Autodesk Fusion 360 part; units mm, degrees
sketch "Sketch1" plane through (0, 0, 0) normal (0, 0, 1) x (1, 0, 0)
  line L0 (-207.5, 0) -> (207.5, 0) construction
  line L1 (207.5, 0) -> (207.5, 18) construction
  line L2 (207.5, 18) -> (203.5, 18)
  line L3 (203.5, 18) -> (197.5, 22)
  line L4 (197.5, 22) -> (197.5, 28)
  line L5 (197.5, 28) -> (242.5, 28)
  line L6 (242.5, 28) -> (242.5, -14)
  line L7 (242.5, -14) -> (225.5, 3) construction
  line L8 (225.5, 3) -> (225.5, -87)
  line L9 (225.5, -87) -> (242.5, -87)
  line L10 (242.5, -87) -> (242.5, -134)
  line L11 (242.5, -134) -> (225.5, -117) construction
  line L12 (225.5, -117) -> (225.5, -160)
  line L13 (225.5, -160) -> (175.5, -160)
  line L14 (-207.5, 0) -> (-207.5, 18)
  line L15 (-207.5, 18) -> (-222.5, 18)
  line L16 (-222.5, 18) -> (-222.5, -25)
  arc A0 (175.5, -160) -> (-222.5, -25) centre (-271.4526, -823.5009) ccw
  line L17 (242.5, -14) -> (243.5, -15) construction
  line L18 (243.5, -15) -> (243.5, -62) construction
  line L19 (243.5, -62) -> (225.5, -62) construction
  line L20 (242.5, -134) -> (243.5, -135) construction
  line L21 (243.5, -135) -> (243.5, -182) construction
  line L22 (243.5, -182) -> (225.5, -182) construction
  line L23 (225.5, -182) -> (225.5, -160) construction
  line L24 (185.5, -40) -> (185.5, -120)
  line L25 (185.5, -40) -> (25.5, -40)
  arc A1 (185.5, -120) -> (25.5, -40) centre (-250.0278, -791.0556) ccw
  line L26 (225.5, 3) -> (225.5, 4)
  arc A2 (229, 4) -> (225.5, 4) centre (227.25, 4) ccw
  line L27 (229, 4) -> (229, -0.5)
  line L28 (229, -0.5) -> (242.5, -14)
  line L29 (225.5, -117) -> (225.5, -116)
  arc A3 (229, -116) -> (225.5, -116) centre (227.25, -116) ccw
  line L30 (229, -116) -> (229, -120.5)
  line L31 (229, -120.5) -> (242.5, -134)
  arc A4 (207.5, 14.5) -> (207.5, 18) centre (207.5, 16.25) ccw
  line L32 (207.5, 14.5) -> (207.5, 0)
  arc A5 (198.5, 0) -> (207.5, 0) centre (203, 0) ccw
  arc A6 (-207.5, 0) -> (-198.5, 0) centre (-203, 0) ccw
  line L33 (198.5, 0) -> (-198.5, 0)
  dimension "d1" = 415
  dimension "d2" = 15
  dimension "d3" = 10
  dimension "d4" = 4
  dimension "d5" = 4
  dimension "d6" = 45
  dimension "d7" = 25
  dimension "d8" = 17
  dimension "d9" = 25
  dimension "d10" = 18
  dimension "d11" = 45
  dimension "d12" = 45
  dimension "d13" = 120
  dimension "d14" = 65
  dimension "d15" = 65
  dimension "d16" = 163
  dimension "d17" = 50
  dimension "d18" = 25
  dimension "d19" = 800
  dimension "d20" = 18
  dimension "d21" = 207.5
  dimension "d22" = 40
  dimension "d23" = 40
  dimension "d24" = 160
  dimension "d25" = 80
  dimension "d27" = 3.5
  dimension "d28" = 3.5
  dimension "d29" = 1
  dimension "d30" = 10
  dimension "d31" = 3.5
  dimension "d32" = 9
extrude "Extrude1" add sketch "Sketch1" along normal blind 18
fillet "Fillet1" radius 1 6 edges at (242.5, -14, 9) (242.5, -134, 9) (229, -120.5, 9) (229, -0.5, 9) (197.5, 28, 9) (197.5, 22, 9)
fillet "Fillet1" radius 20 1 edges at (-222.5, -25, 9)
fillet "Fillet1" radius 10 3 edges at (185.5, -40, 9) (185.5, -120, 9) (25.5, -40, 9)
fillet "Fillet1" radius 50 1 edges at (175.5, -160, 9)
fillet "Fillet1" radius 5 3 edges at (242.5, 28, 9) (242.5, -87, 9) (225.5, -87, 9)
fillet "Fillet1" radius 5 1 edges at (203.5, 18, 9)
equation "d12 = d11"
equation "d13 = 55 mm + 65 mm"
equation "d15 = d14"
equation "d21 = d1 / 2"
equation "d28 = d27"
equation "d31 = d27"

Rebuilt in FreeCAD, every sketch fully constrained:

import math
import FreeCAD as App
import Part
import Sketcher
Q = App.Units.Quantity


def edges_at(feature, points):
    """Names of the edges that pass closest to the given points."""
    edges = feature.Shape.Edges
    near = lambda p: min(range(len(edges)), key=lambda i: edges[i].distToShape(Part.Vertex(*p))[0])
    return sorted({f"Edge{near(p) + 1}" for p in points})

doc = App.newDocument("Part")
params = doc.addObject("Spreadsheet::Sheet", "Params")
for row, (alias, value) in enumerate([
    ("sketch1_radius", "800 mm"),
    ("sketch1_radius2", "4.5 mm"),
    ("sketch1_width", "4 mm"),
    ("sketch1_width2", "15 mm"),
    ("sketch1_width3", "50 mm"),
    ("pad1_length", "18 mm"),
    ("fillet_radius", "1 mm"),
    ("fillet2_radius", "20 mm"),
    ("fillet3_radius", "10 mm"),
    ("fillet4_radius", "50 mm"),
    ("fillet5_radius", "5 mm"),
    ("fillet6_radius", "5 mm"),
], start=1):
    params.set(f"A{row}", alias)
    params.set(f"B{row}", "=" + value)
    params.setAlias(f"B{row}", alias)

body = doc.addObject("PartDesign::Body", "Body")

sketch1 = body.newObject("Sketcher::SketchObject", "Sketch")
sketch1.AttachmentSupport = (doc.getObject("XY_Plane"), [""])
sketch1.MapMode = "FlatFace"
sketch1.addGeometry(Part.LineSegment(App.Vector(203.5, 18, 0), App.Vector(207.5, 18, 0)), False)
sketch1.addGeometry(Part.ArcOfCircle(Part.Circle(App.Vector(207.5, 16.25, 0), App.Vector(0, 0, 1), 1.75), math.radians(-90), math.radians(90)), False)
sketch1.addGeometry(Part.LineSegment(App.Vector(207.5, 14.5, 0), App.Vector(207.5, 0, 0)), False)
sketch1.addGeometry(Part.ArcOfCircle(Part.Circle(App.Vector(203, 0, 0), App.Vector(0, 0, 1), 4.5), math.radians(180), math.radians(360)), False)
sketch1.addGeometry(Part.LineSegment(App.Vector(198.5, 0, 0), App.Vector(-198.5, 0, 0)), False)
sketch1.addGeometry(Part.ArcOfCircle(Part.Circle(App.Vector(-203, 0, 0), App.Vector(0, 0, 1), 4.5), math.radians(180), math.radians(360)), False)
sketch1.addGeometry(Part.LineSegment(App.Vector(-207.5, 0, 0), App.Vector(-207.5, 18, 0)), False)
sketch1.addGeometry(Part.LineSegment(App.Vector(-207.5, 18, 0), App.Vector(-222.5, 18, 0)), False)
sketch1.addGeometry(Part.LineSegment(App.Vector(-222.5, 18, 0), App.Vector(-222.5, -25, 0)), False)
sketch1.addGeometry(Part.ArcOfCircle(Part.Circle(App.Vector(-271.4526, -823.5009, 0), App.Vector(0, 0, 1), 800.000044), math.radians(56.034699), math.radians(86.491837)), False)
sketch1.addGeometry(Part.LineSegment(App.Vector(175.5, -160, 0), App.Vector(225.5, -160, 0)), False)
sketch1.addGeometry(Part.LineSegment(App.Vector(225.5, -160, 0), App.Vector(225.5, -116, 0)), False)
sketch1.addGeometry(Part.ArcOfCircle(Part.Circle(App.Vector(227.25, -116, 0), App.Vector(0, 0, 1), 1.75), math.radians(0), math.radians(180)), False)
sketch1.addGeometry(Part.LineSegment(App.Vector(229, -116, 0), App.Vector(229, -120.5, 0)), False)
sketch1.addGeometry(Part.LineSegment(App.Vector(229, -120.5, 0), App.Vector(242.5, -134, 0)), False)
sketch1.addGeometry(Part.LineSegment(App.Vector(242.5, -134, 0), App.Vector(242.5, -87, 0)), False)
sketch1.addGeometry(Part.LineSegment(App.Vector(242.5, -87, 0), App.Vector(225.5, -87, 0)), False)
sketch1.addGeometry(Part.LineSegment(App.Vector(225.5, -87, 0), App.Vector(225.5, 4, 0)), False)
sketch1.addGeometry(Part.ArcOfCircle(Part.Circle(App.Vector(227.25, 4, 0), App.Vector(0, 0, 1), 1.75), math.radians(0), math.radians(180)), False)
sketch1.addGeometry(Part.LineSegment(App.Vector(229, 4, 0), App.Vector(229, -0.5, 0)), False)
sketch1.addGeometry(Part.LineSegment(App.Vector(229, -0.5, 0), App.Vector(242.5, -14, 0)), False)
sketch1.addGeometry(Part.LineSegment(App.Vector(242.5, -14, 0), App.Vector(242.5, 28, 0)), False)
sketch1.addGeometry(Part.LineSegment(App.Vector(242.5, 28, 0), App.Vector(197.5, 28, 0)), False)
sketch1.addGeometry(Part.LineSegment(App.Vector(197.5, 28, 0), App.Vector(197.5, 22, 0)), False)
sketch1.addGeometry(Part.LineSegment(App.Vector(197.5, 22, 0), App.Vector(203.5, 18, 0)), False)
sketch1.addGeometry(Part.LineSegment(App.Vector(25.5, -40, 0), App.Vector(185.5, -40, 0)), False)
sketch1.addGeometry(Part.LineSegment(App.Vector(185.5, -40, 0), App.Vector(185.5, -120, 0)), False)
sketch1.addGeometry(Part.ArcOfCircle(Part.Circle(App.Vector(-250.0278, -791.0556, 0), App.Vector(0, 0, 1), 800.000052), math.radians(57.015665), math.radians(69.854232)), False)
sketch1.addConstraint(Sketcher.Constraint("Tangent", 0, 2, 1, 2))
sketch1.addConstraint(Sketcher.Constraint("Coincident", 1, 1, 2, 1))
sketch1.addConstraint(Sketcher.Constraint("Tangent", 2, 2, 3, 2))
sketch1.addConstraint(Sketcher.Constraint("Coincident", 3, 1, 4, 1))
sketch1.addConstraint(Sketcher.Constraint("Coincident", 4, 2, 5, 2))
sketch1.addConstraint(Sketcher.Constraint("Tangent", 5, 1, 6, 1))
sketch1.addConstraint(Sketcher.Constraint("Coincident", 6, 2, 7, 1))
sketch1.addConstraint(Sketcher.Constraint("Coincident", 7, 2, 8, 1))
sketch1.addConstraint(Sketcher.Constraint("Coincident", 8, 2, 9, 2))
sketch1.addConstraint(Sketcher.Constraint("Coincident", 9, 1, 10, 1))
sketch1.addConstraint(Sketcher.Constraint("Coincident", 10, 2, 11, 1))
sketch1.addConstraint(Sketcher.Constraint("Tangent", 11, 2, 12, 2))
sketch1.addConstraint(Sketcher.Constraint("Tangent", 12, 1, 13, 1))
sketch1.addConstraint(Sketcher.Constraint("Coincident", 13, 2, 14, 1))
sketch1.addConstraint(Sketcher.Constraint("Coincident", 14, 2, 15, 1))
sketch1.addConstraint(Sketcher.Constraint("Coincident", 15, 2, 16, 1))
sketch1.addConstraint(Sketcher.Constraint("Coincident", 16, 2, 17, 1))
sketch1.addConstraint(Sketcher.Constraint("Tangent", 17, 2, 18, 2))
sketch1.addConstraint(Sketcher.Constraint("Tangent", 18, 1, 19, 1))
sketch1.addConstraint(Sketcher.Constraint("Coincident", 19, 2, 20, 1))
sketch1.addConstraint(Sketcher.Constraint("Coincident", 20, 2, 21, 1))
sketch1.addConstraint(Sketcher.Constraint("Coincident", 21, 2, 22, 1))
sketch1.addConstraint(Sketcher.Constraint("Coincident", 22, 2, 23, 1))
sketch1.addConstraint(Sketcher.Constraint("Coincident", 23, 2, 24, 1))
sketch1.addConstraint(Sketcher.Constraint("Coincident", 24, 2, 0, 1))
sketch1.addConstraint(Sketcher.Constraint("Coincident", 25, 2, 26, 1))
sketch1.addConstraint(Sketcher.Constraint("Coincident", 26, 2, 27, 1))
sketch1.addConstraint(Sketcher.Constraint("Coincident", 27, 2, 25, 1))
sketch1.addConstraint(Sketcher.Constraint("Horizontal", 0))
sketch1.addConstraint(Sketcher.Constraint("Vertical", 2))
sketch1.addConstraint(Sketcher.Constraint("Horizontal", 4))
sketch1.addConstraint(Sketcher.Constraint("Vertical", 6))
sketch1.addConstraint(Sketcher.Constraint("Horizontal", 7))
sketch1.addConstraint(Sketcher.Constraint("Vertical", 8))
sketch1.addConstraint(Sketcher.Constraint("Horizontal", 10))
sketch1.addConstraint(Sketcher.Constraint("Vertical", 11))
sketch1.addConstraint(Sketcher.Constraint("Vertical", 13))
sketch1.addConstraint(Sketcher.Constraint("Vertical", 15))
sketch1.addConstraint(Sketcher.Constraint("Horizontal", 16))
sketch1.addConstraint(Sketcher.Constraint("Vertical", 17))
sketch1.addConstraint(Sketcher.Constraint("Vertical", 19))
sketch1.addConstraint(Sketcher.Constraint("Vertical", 21))
sketch1.addConstraint(Sketcher.Constraint("Horizontal", 22))
sketch1.addConstraint(Sketcher.Constraint("Vertical", 23))
sketch1.addConstraint(Sketcher.Constraint("Horizontal", 25))
sketch1.addConstraint(Sketcher.Constraint("Vertical", 26))
sketch1.addConstraint(Sketcher.Constraint("Equal", 3, 5))
sketch1.addConstraint(Sketcher.Constraint("Equal", 1, 12))
sketch1.addConstraint(Sketcher.Constraint("Equal", 12, 18))
sketch1.addConstraint(Sketcher.Constraint("Equal", 9, 27))
sketch1.addConstraint(Sketcher.Constraint("Symmetric", 3, 3, 5, 3, -1, 1))
sketch1.addConstraint(Sketcher.Constraint("Symmetric", 0, 2, 6, 2, -2))
sketch1.addConstraint(Sketcher.Constraint("PointOnObject", 3, 3, -1))
sketch1.addConstraint(Sketcher.Constraint("PointOnObject", 3, 1, -1))
sketch1.addConstraint(Sketcher.Constraint("Parallel", 14, 20))
sketch1.addConstraint(Sketcher.Constraint("Vertical", 12, 3, 18, 3))
sketch1.addConstraint(Sketcher.Constraint("Vertical", 15, 2, 20, 2))
sketch1.addConstraint(Sketcher.Constraint("Equal", 13, 19))
sketch1.addConstraint(Sketcher.Constraint("Radius", 9, 800.0))
sketch1.addConstraint(Sketcher.Constraint("Radius", 3, 4.5))
sketch1.addConstraint(Sketcher.Constraint("DistanceX", 0, 1, 0, 2, 4.0))
sketch1.addConstraint(Sketcher.Constraint("DistanceX", 7, 2, 7, 1, 15.0))
sketch1.addConstraint(Sketcher.Constraint("DistanceX", 10, 1, 10, 2, 50.0))
sketch1.addConstraint(Sketcher.Constraint("DistanceX", 16, 2, 16, 1, 17.0))
sketch1.addConstraint(Sketcher.Constraint("DistanceX", 22, 2, 22, 1, 45.0))
sketch1.addConstraint(Sketcher.Constraint("DistanceX", 25, 1, 25, 2, 160.0))
sketch1.addConstraint(Sketcher.Constraint("DistanceY", 6, 1, 6, 2, 18.0))
sketch1.addConstraint(Sketcher.Constraint("DistanceY", 26, 2, 26, 1, 80.0))
sketch1.addConstraint(Sketcher.Constraint("Angle", 14, Q("-45 deg")))
sketch1.addConstraint(Sketcher.Constraint("Radius", 1, 1.75))
sketch1.addConstraint(Sketcher.Constraint("DistanceY", -1, 1, 18, 3, 4.0))
sketch1.addConstraint(Sketcher.Constraint("DistanceY", 8, 2, -1, 1, 25.0))
sketch1.addConstraint(Sketcher.Constraint("DistanceY", 10, 2, -1, 1, 160.0))
sketch1.addConstraint(Sketcher.Constraint("DistanceY", 25, 2, -1, 1, 40.0))
sketch1.addConstraint(Sketcher.Constraint("DistanceY", 12, 3, 18, 3, 120.0))
sketch1.addConstraint(Sketcher.Constraint("DistanceX", 5, 1, 2, 2, 415.0))
sketch1.addConstraint(Sketcher.Constraint("DistanceX", 2, 2, 10, 2, 18.0))
sketch1.addConstraint(Sketcher.Constraint("DistanceY", 14, 2, 12, 1, 18.0))
sketch1.addConstraint(Sketcher.Constraint("DistanceY", 0, 2, 21, 2, 10.0))
sketch1.addConstraint(Sketcher.Constraint("DistanceY", 0, 2, 23, 2, 4.0))
sketch1.addConstraint(Sketcher.Constraint("DistanceX", 26, 2, 11, 2, 40.0))
sketch1.addConstraint(Sketcher.Constraint("DistanceY", 15, 1, 15, 2, 47.0))
sketch1.setExpression("Constraints[58]", "Params.sketch1_radius")
sketch1.setExpression("Constraints[59]", "Params.sketch1_radius2")
sketch1.setExpression("Constraints[60]", "Params.sketch1_width")
sketch1.setExpression("Constraints[61]", "Params.sketch1_width2")
sketch1.setExpression("Constraints[62]", "Params.sketch1_width3")
pad1 = body.newObject("PartDesign::Pad", "Pad")
pad1.Profile = sketch1
pad1.setExpression("Length", "Params.pad1_length")
doc.recompute()

fillet = body.newObject("PartDesign::Fillet", "Fillet")
fillet.Base = (pad1, edges_at(pad1, [
    (242.5, -14, 9),
    (242.5, -134, 9),
    (229, -120.5, 9),
    (229, -0.5, 9),
    (197.5, 28, 9),
    (197.5, 22, 9),
]))
fillet.setExpression("Radius", "Params.fillet_radius")
doc.recompute()

fillet2 = body.newObject("PartDesign::Fillet", "Fillet001")
fillet2.Base = (fillet, edges_at(fillet, [(-222.5, -25, 9)]))
fillet2.setExpression("Radius", "Params.fillet2_radius")
doc.recompute()

fillet3 = body.newObject("PartDesign::Fillet", "Fillet002")
fillet3.Base = (fillet2, edges_at(fillet2, [(185.5, -40, 9), (185.5, -120, 9), (25.5, -40, 9)]))
fillet3.setExpression("Radius", "Params.fillet3_radius")
doc.recompute()

fillet4 = body.newObject("PartDesign::Fillet", "Fillet003")
fillet4.Base = (fillet3, edges_at(fillet3, [(175.5, -160, 9)]))
fillet4.setExpression("Radius", "Params.fillet4_radius")
doc.recompute()

fillet5 = body.newObject("PartDesign::Fillet", "Fillet004")
fillet5.Base = (fillet4, edges_at(fillet4, [(242.5, 28, 9), (242.5, -87, 9), (225.5, -87, 9)]))
fillet5.setExpression("Radius", "Params.fillet5_radius")
doc.recompute()

fillet6 = body.newObject("PartDesign::Fillet", "Fillet005")
fillet6.Base = (fillet5, edges_at(fillet5, [(203.5, 18, 9)]))
fillet6.setExpression("Radius", "Params.fillet6_radius")

doc.recompute()
